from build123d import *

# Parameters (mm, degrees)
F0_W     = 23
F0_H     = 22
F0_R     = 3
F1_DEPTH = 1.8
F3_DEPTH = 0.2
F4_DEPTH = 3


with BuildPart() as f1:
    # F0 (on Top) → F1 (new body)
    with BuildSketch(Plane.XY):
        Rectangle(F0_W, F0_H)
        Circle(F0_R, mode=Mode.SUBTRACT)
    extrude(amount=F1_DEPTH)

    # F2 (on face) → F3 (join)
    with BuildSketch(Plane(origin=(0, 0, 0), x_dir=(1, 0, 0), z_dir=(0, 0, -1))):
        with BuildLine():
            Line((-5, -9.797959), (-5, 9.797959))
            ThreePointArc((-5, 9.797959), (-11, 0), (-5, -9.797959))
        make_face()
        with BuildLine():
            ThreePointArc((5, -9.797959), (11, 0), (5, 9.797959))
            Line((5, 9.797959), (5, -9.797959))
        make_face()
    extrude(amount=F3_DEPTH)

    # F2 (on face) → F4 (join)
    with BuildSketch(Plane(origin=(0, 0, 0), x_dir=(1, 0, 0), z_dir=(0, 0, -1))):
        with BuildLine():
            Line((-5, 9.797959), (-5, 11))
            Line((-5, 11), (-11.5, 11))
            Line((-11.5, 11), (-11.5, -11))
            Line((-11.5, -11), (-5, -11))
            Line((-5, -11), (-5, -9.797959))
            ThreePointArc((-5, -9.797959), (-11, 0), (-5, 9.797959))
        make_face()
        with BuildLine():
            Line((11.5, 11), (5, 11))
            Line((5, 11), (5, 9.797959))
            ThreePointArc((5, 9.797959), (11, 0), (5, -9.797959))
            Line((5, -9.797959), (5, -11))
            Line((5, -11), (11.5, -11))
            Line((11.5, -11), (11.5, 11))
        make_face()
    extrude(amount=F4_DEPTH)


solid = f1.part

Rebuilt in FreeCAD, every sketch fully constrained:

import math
import FreeCAD as App
import Part
import Sketcher
from FreeCAD import Vector
Q = App.Units.Quantity

doc = App.newDocument("Part")
body = doc.addObject("PartDesign::Body", "Body")

# Sketch on XY plane
sketch1 = body.newObject("Sketcher::SketchObject", "Sketch")
sketch1.AttachmentSupport = (doc.getObject("XY_Plane"), [""])
sketch1.MapMode = "FlatFace"
sketch1.addGeometry([
    Part.LineSegment(Vector(-11.5, 11, 0), Vector(-11.5, -11, 0)),  # 0
    Part.LineSegment(Vector(-11.5, -11, 0), Vector(11.5, -11, 0)),  # 1
    Part.LineSegment(Vector(11.5, -11, 0), Vector(11.5, 11, 0)),  # 2
    Part.LineSegment(Vector(11.5, 11, 0), Vector(-11.5, 11, 0)),  # 3
    Part.Circle(Vector(0, 0, 0), Vector(0, 0, 1), 3),  # 4
], False)
sketch1.addConstraint([
    Sketcher.Constraint("Coincident", 0, 2, 1, 1),
    Sketcher.Constraint("Coincident", 1, 2, 2, 1),
    Sketcher.Constraint("Coincident", 2, 2, 3, 1),
    Sketcher.Constraint("Coincident", 3, 2, 0, 1),
    Sketcher.Constraint("Vertical", 0),
    Sketcher.Constraint("Horizontal", 1),
    Sketcher.Constraint("Vertical", 2),
    Sketcher.Constraint("Horizontal", 3),
    Sketcher.Constraint("Coincident", 4, 3, -1, 1),
    Sketcher.Constraint("Symmetric", 0, 2, 2, 2, -1, 1),
    Sketcher.Constraint("Diameter", 4, Q("6 mm")),
    Sketcher.Constraint("DistanceX", 1, 1, 1, 2, Q("23 mm")),
    Sketcher.Constraint("DistanceY", 0, 2, 0, 1, Q("22 mm")),
])
pad1 = body.newObject("PartDesign::Pad", "Pad")
pad1.Profile = sketch1
pad1.Length = 1.8

# Sketch on XY plane
sketch2 = body.newObject("Sketcher::SketchObject", "Sketch001")
sketch2.AttachmentSupport = (doc.getObject("XY_Plane"), [""])
sketch2.MapMode = "FlatFace"
sketch2.addGeometry([
    Part.LineSegment(Vector(-5, 10, 0), Vector(-5, -10, 0)),
    Part.ArcOfCircle(Part.Circle(Vector(0, 0, 0), Vector(0, 0, 1), 11), math.radians(117), math.radians(243)),
    Part.ArcOfCircle(Part.Circle(Vector(0, 0, 0), Vector(0, 0, 1), 11), math.radians(-63), math.radians(63)),
    Part.LineSegment(Vector(5, -10, 0), Vector(5, 10, 0)),
], False)
sketch2.addConstraint([
    Sketcher.Constraint("Coincident", 0, 1, 1, 1),
    Sketcher.Constraint("Coincident", 1, 2, 0, 2),
    Sketcher.Constraint("Coincident", 2, 1, 3, 1),
    Sketcher.Constraint("Coincident", 3, 2, 2, 2),
    Sketcher.Constraint("Vertical", 0),
    Sketcher.Constraint("Vertical", 3),
    Sketcher.Constraint("Coincident", 1, 3, -1, 1),
    Sketcher.Constraint("Coincident", 2, 3, -1, 1),
    Sketcher.Constraint("Equal", 1, 2),
    Sketcher.Constraint("Horizontal", 1, 2, 2, 1),
    Sketcher.Constraint("Radius", 1, Q("11 mm")),
    Sketcher.Constraint("DistanceX", 0, 1, -1, 1, Q("5 mm")),
])
pad2 = body.newObject("PartDesign::Pad", "Pad001")
pad2.Profile = sketch2
pad2.Length = 0.2
pad2.Reversed = True

# Sketch on XY plane
sketch3 = body.newObject("Sketcher::SketchObject", "Sketch002")
sketch3.AttachmentSupport = (doc.getObject("XY_Plane"), [""])
sketch3.MapMode = "FlatFace"
sketch3.addGeometry([
    Part.LineSegment(Vector(-5, -9.8, 0), Vector(-5, -11, 0)),  # 0
    Part.LineSegment(Vector(-5, -11, 0), Vector(-11.5, -11, 0)),  # 1
    Part.LineSegment(Vector(-11.5, -11, 0), Vector(-11.5, 11, 0)),  # 2
    Part.LineSegment(Vector(-11.5, 11, 0), Vector(-5, 11, 0)),  # 3
    Part.LineSegment(Vector(-5, 11, 0), Vector(-5, 9.8, 0)),  # 4
    Part.ArcOfCircle(Part.Circle(Vector(0, 0, 0), Vector(0, 0, 1), 11), math.radians(117), math.radians(243)),  # 5
    Part.LineSegment(Vector(11.5, -11, 0), Vector(5, -11, 0)),  # 6
    Part.LineSegment(Vector(5, -11, 0), Vector(5, -9.8, 0)),  # 7
    Part.ArcOfCircle(Part.Circle(Vector(0, 0, 0), Vector(0, 0, 1), 11), math.radians(-63), math.radians(63)),  # 8
    Part.LineSegment(Vector(5, 9.8, 0), Vector(5, 11, 0)),  # 9
    Part.LineSegment(Vector(5, 11, 0), Vector(11.5, 11, 0)),  # 10
    Part.LineSegment(Vector(11.5, 11, 0), Vector(11.5, -11, 0)),  # 11
], False)
sketch3.addConstraint([
    Sketcher.Constraint("Coincident", 0, 2, 1, 1),
    Sketcher.Constraint("Coincident", 1, 2, 2, 1),
    Sketcher.Constraint("Coincident", 2, 2, 3, 1),
    Sketcher.Constraint("Coincident", 3, 2, 4, 1),
    Sketcher.Constraint("Coincident", 4, 2, 5, 1),
    Sketcher.Constraint("Coincident", 5, 2, 0, 1),
    Sketcher.Constraint("Coincident", 6, 2, 7, 1),
    Sketcher.Constraint("Coincident", 7, 2, 8, 1),
    Sketcher.Constraint("Coincident", 8, 2, 9, 1),
    Sketcher.Constraint("Coincident", 9, 2, 10, 1),
    Sketcher.Constraint("Coincident", 10, 2, 11, 1),
    Sketcher.Constraint("Coincident", 11, 2, 6, 1),
    Sketcher.Constraint("Vertical", 0),
    Sketcher.Constraint("Horizontal", 1),
    Sketcher.Constraint("Vertical", 2),
    Sketcher.Constraint("Horizontal", 3),
    Sketcher.Constraint("Vertical", 4),
    Sketcher.Constraint("Horizontal", 6),
    Sketcher.Constraint("Vertical", 7),
    Sketcher.Constraint("Vertical", 9),
    Sketcher.Constraint("Horizontal", 10),
    Sketcher.Constraint("Vertical", 11),
    Sketcher.Constraint("Coincident", 5, 3, -1, 1),
    Sketcher.Constraint("Coincident", 8, 3, -1, 1),
    Sketcher.Constraint("Equal", 5, 8),
    Sketcher.Constraint("Symmetric", 3, 2, 6, 2, -1, 1),
    Sketcher.Constraint("Symmetric", 0, 2, 9, 2, -1, 1),
    Sketcher.Constraint("Symmetric", 0, 2, 6, 2, -2),
    Sketcher.Constraint("Equal", 3, 6),
    Sketcher.Constraint("Radius", 5, Q("11 mm")),
    Sketcher.Constraint("DistanceY", 2, 1, 2, 2, Q("22 mm")),
    Sketcher.Constraint("DistanceX", 1, 2, 1, 1, Q("6.5 mm")),
    Sketcher.Constraint("DistanceX", 0, 2, -1, 1, Q("5 mm")),
])
pad3 = body.newObject("PartDesign::Pad", "Pad002")
pad3.Profile = sketch3
pad3.Length = 3
pad3.Reversed = True

doc.recompute()
